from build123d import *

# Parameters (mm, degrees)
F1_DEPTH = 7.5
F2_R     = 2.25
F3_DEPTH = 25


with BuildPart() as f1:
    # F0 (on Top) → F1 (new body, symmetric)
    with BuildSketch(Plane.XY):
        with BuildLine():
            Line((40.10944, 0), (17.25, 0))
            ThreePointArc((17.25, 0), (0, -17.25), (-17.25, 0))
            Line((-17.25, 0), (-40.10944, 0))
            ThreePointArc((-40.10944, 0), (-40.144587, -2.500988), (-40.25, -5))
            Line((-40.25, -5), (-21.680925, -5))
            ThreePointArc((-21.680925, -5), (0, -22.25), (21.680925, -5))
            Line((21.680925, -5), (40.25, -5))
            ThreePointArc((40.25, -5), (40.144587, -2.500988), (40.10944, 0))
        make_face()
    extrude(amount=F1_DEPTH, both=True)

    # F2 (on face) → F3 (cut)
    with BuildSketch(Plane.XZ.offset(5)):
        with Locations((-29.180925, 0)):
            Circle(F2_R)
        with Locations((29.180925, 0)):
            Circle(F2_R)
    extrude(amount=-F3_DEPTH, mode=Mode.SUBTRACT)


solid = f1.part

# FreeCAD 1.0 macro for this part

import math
import FreeCAD as App
import Part
import Sketcher
from FreeCAD import Vector
Q = App.Units.Quantity

doc = App.newDocument("Part")
body = doc.addObject("PartDesign::Body", "Body")

sketch1 = doc.addObject("Sketcher::SketchObject", "Sketch")
body.addObject(sketch1)
sketch1.AttachmentSupport = (doc.XY_Plane, [""])
sketch1.MapMode = "FlatFace"
sketch1.addGeometry([
    Part.LineSegment(Vector(40, 0, 0), Vector(17, 0, 0)),
    Part.ArcOfCircle(Part.Circle(Vector(0, 0, 0), Vector(0, 0, 1), 17), math.radians(180), math.radians(360)),
    Part.LineSegment(Vector(-17, 0, 0), Vector(-40, 0, 0)),
    Part.ArcOfCircle(Part.Circle(Vector(-129, 0, 0), Vector(0, 0, 1), 89), math.radians(-3.22), math.radians(0)),
    Part.LineSegment(Vector(-40, -5, 0), Vector(-22, -5, 0)),
    Part.ArcOfCircle(Part.Circle(Vector(0, 0, 0), Vector(0, 0, 1), 22), math.radians(-167), math.radians(-13)),
    Part.LineSegment(Vector(22, -5, 0), Vector(40, -5, 0)),
    Part.ArcOfCircle(Part.Circle(Vector(129, 0, 0), Vector(0, 0, 1), 89), math.radians(-180), math.radians(-176.78)),
], False)
sketch1.addConstraint([
    Sketcher.Constraint("Coincident", 0, 2, 1, 2),
    Sketcher.Constraint("Coincident", 1, 1, 2, 1),
    Sketcher.Constraint("Coincident", 2, 2, 3, 2),
    Sketcher.Constraint("Coincident", 3, 1, 4, 1),
    Sketcher.Constraint("Coincident", 4, 2, 5, 1),
    Sketcher.Constraint("Coincident", 5, 2, 6, 1),
    Sketcher.Constraint("Coincident", 6, 2, 7, 2),
    Sketcher.Constraint("Coincident", 7, 1, 0, 1),
    Sketcher.Constraint("Horizontal", 0),
    Sketcher.Constraint("Horizontal", 2),
    Sketcher.Constraint("Horizontal", 4),
    Sketcher.Constraint("Horizontal", 6),
    Sketcher.Constraint("Coincident", 1, 3, -1, 1),
    Sketcher.Constraint("Coincident", 5, 3, -1, 1),
    Sketcher.Constraint("Equal", 3, 7),
    Sketcher.Constraint("Symmetric", 3, 3, 7, 3, -1, 1),
    Sketcher.Constraint("Symmetric", 3, 1, 6, 2, -2),
    Sketcher.Constraint("PointOnObject", 0, 2, -1),
    Sketcher.Constraint("PointOnObject", 1, 1, -1),
    Sketcher.Constraint("Radius", 1, Q("17.25 mm")),
    Sketcher.Constraint("Radius", 5, Q("22.25 mm")),
    Sketcher.Constraint("DistanceY", 3, 1, -1, 1, Q("5 mm")),
    Sketcher.Constraint("DistanceX", 3, 1, 1, 1, Q("23 mm")),
    Sketcher.Constraint("Radius", 3, Q("89.000402 mm")),
])
pad1 = doc.addObject("PartDesign::Pad", "Pad")
body.addObject(pad1)
pad1.Profile = sketch1
pad1.Length = 15
pad1.Midplane = True

sketch2 = doc.addObject("Sketcher::SketchObject", "Sketch001")
body.addObject(sketch2)
sketch2.AttachmentSupport = (doc.XZ_Plane, [""])
sketch2.MapMode = "FlatFace"
sketch2.AttachmentOffset = App.Placement(Vector(0, 0, 5), App.Rotation())
sketch2.addGeometry([
    Part.Circle(Vector(-29.2, 0, 0), Vector(0, 0, 1), 2.2),
    Part.Circle(Vector(29.2, 0, 0), Vector(0, 0, 1), 2.2),
], False)
sketch2.addConstraint([
    Sketcher.Constraint("Equal", 0, 1),
    Sketcher.Constraint("Symmetric", 0, 3, 1, 3, -1, 1),
    Sketcher.Constraint("PointOnObject", 0, 3, -1),
    Sketcher.Constraint("Diameter", 0, Q("4.5 mm")),
    Sketcher.Constraint("DistanceX", 0, 3, 1, 3, Q("58.36185 mm")),
])
pocket1 = doc.addObject("PartDesign::Pocket", "Pocket")
body.addObject(pocket1)
pocket1.Profile = sketch2
pocket1.Length = 25

doc.recompute()
